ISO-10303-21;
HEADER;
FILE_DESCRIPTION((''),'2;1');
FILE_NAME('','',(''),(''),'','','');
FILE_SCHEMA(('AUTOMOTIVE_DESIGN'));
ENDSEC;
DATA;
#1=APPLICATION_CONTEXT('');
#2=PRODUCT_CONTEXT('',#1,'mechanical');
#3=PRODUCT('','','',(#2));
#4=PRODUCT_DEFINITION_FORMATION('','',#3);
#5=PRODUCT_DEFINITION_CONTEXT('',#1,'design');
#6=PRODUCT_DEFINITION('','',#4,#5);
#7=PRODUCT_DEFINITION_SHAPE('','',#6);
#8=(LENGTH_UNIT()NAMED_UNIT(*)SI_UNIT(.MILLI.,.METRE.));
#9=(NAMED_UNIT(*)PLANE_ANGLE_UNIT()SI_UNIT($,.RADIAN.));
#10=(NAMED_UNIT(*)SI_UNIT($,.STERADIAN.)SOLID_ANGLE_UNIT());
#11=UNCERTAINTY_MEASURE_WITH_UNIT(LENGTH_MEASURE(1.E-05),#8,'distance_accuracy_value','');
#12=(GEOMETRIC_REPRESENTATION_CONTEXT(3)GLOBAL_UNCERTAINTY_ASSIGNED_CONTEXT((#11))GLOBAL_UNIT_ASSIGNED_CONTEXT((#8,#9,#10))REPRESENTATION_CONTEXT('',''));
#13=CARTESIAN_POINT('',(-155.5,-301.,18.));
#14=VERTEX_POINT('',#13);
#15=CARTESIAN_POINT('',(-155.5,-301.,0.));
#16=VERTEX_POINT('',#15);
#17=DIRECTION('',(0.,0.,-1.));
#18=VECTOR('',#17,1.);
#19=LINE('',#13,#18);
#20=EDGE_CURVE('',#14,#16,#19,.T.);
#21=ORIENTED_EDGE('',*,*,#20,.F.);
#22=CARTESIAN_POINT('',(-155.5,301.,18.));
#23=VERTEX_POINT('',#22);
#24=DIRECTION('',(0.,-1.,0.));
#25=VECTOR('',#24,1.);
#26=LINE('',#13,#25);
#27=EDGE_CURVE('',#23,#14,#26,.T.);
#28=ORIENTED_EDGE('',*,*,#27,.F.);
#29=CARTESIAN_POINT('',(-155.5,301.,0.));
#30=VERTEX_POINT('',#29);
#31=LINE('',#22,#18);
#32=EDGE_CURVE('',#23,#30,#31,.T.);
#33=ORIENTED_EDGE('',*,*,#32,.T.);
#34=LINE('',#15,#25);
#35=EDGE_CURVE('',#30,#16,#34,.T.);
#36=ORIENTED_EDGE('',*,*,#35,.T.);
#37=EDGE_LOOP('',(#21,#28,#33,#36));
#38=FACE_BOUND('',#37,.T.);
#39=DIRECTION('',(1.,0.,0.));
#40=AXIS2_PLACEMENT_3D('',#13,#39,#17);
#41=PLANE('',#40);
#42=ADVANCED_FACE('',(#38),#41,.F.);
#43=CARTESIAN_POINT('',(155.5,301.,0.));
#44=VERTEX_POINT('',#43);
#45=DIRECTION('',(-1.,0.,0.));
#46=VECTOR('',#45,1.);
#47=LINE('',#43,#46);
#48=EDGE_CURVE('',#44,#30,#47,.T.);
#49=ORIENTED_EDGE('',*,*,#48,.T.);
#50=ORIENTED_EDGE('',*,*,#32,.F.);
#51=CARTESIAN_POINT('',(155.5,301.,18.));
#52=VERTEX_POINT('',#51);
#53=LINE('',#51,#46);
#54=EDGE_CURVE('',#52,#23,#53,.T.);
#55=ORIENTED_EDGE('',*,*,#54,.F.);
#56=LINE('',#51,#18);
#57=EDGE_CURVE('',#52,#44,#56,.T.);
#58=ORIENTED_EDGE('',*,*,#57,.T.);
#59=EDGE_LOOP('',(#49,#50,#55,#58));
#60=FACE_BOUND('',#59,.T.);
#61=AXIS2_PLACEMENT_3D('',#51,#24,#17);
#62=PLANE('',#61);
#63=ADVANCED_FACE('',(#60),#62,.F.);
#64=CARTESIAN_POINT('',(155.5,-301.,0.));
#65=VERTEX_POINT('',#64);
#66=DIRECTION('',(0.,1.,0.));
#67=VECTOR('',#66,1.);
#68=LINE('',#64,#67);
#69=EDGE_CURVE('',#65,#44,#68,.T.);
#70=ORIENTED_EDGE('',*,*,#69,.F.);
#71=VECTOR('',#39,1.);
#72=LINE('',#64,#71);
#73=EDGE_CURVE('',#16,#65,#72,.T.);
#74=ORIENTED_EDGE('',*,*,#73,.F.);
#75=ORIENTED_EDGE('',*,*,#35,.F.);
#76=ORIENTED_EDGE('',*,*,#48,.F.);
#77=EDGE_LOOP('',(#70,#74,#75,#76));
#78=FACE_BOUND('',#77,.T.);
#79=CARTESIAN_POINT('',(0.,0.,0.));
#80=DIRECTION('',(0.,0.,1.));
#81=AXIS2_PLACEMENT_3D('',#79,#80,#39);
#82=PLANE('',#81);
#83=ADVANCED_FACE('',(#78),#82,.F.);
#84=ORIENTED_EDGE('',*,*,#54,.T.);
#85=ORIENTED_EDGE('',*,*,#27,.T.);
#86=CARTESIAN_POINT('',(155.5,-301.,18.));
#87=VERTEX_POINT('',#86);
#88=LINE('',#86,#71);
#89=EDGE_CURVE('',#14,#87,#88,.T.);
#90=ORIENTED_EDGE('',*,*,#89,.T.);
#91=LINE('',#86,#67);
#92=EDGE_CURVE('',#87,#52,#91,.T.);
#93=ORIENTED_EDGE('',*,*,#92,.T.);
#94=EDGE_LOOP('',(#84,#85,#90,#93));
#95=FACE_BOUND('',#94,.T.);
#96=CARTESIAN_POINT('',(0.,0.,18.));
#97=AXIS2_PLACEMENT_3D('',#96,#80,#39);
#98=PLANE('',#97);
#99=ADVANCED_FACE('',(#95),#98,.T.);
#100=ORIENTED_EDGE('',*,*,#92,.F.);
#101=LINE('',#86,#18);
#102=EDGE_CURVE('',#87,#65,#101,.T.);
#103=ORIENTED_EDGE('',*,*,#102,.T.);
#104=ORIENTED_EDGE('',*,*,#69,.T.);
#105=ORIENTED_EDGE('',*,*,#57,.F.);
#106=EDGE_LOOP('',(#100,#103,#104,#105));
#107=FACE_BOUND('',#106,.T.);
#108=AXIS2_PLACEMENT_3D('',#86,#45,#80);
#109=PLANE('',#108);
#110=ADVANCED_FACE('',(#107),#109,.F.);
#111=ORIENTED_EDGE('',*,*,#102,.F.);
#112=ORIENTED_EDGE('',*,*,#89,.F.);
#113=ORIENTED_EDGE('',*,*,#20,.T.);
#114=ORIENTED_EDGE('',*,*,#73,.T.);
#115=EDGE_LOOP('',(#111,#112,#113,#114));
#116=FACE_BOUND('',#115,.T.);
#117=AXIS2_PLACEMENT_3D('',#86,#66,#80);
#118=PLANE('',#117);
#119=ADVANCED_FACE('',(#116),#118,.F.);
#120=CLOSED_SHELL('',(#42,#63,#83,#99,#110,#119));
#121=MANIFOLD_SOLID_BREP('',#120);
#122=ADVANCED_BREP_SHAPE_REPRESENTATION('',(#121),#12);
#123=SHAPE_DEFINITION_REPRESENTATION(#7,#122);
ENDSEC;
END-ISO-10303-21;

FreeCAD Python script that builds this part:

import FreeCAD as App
import Part
import Sketcher
Q = App.Units.Quantity

doc = App.newDocument("Part")
body = doc.addObject("PartDesign::Body", "Body")

# Sketch on XY plane
sketch1 = body.newObject("Sketcher::SketchObject", "Sketch")
sketch1.AttachmentSupport = (doc.getObject("XY_Plane"), [""])
sketch1.MapMode = "FlatFace"
sketch1.addGeometry(Part.LineSegment(App.Vector(-155.5, 301, 0), App.Vector(-155.5, -301, 0)), False)
sketch1.addGeometry(Part.LineSegment(App.Vector(-155.5, -301, 0), App.Vector(155.5, -301, 0)), False)
sketch1.addGeometry(Part.LineSegment(App.Vector(155.5, -301, 0), App.Vector(155.5, 301, 0)), False)
sketch1.addGeometry(Part.LineSegment(App.Vector(155.5, 301, 0), App.Vector(-155.5, 301, 0)), False)
sketch1.addConstraint(Sketcher.Constraint("Coincident", 0, 2, 1, 1))
sketch1.addConstraint(Sketcher.Constraint("Coincident", 1, 2, 2, 1))
sketch1.addConstraint(Sketcher.Constraint("Coincident", 2, 2, 3, 1))
sketch1.addConstraint(Sketcher.Constraint("Coincident", 3, 2, 0, 1))
sketch1.addConstraint(Sketcher.Constraint("Vertical", 0))
sketch1.addConstraint(Sketcher.Constraint("Horizontal", 1))
sketch1.addConstraint(Sketcher.Constraint("Vertical", 2))
sketch1.addConstraint(Sketcher.Constraint("Horizontal", 3))
sketch1.addConstraint(Sketcher.Constraint("Symmetric", 0, 2, 2, 2, -1, 1))
sketch1.addConstraint(Sketcher.Constraint("DistanceX", 1, 1, 1, 2, Q("311 mm")))
sketch1.addConstraint(Sketcher.Constraint("DistanceY", 0, 2, 0, 1, Q("602 mm")))
pad1 = body.newObject("PartDesign::Pad", "Pad")
pad1.Profile = sketch1
pad1.Length = 18

doc.recompute()
